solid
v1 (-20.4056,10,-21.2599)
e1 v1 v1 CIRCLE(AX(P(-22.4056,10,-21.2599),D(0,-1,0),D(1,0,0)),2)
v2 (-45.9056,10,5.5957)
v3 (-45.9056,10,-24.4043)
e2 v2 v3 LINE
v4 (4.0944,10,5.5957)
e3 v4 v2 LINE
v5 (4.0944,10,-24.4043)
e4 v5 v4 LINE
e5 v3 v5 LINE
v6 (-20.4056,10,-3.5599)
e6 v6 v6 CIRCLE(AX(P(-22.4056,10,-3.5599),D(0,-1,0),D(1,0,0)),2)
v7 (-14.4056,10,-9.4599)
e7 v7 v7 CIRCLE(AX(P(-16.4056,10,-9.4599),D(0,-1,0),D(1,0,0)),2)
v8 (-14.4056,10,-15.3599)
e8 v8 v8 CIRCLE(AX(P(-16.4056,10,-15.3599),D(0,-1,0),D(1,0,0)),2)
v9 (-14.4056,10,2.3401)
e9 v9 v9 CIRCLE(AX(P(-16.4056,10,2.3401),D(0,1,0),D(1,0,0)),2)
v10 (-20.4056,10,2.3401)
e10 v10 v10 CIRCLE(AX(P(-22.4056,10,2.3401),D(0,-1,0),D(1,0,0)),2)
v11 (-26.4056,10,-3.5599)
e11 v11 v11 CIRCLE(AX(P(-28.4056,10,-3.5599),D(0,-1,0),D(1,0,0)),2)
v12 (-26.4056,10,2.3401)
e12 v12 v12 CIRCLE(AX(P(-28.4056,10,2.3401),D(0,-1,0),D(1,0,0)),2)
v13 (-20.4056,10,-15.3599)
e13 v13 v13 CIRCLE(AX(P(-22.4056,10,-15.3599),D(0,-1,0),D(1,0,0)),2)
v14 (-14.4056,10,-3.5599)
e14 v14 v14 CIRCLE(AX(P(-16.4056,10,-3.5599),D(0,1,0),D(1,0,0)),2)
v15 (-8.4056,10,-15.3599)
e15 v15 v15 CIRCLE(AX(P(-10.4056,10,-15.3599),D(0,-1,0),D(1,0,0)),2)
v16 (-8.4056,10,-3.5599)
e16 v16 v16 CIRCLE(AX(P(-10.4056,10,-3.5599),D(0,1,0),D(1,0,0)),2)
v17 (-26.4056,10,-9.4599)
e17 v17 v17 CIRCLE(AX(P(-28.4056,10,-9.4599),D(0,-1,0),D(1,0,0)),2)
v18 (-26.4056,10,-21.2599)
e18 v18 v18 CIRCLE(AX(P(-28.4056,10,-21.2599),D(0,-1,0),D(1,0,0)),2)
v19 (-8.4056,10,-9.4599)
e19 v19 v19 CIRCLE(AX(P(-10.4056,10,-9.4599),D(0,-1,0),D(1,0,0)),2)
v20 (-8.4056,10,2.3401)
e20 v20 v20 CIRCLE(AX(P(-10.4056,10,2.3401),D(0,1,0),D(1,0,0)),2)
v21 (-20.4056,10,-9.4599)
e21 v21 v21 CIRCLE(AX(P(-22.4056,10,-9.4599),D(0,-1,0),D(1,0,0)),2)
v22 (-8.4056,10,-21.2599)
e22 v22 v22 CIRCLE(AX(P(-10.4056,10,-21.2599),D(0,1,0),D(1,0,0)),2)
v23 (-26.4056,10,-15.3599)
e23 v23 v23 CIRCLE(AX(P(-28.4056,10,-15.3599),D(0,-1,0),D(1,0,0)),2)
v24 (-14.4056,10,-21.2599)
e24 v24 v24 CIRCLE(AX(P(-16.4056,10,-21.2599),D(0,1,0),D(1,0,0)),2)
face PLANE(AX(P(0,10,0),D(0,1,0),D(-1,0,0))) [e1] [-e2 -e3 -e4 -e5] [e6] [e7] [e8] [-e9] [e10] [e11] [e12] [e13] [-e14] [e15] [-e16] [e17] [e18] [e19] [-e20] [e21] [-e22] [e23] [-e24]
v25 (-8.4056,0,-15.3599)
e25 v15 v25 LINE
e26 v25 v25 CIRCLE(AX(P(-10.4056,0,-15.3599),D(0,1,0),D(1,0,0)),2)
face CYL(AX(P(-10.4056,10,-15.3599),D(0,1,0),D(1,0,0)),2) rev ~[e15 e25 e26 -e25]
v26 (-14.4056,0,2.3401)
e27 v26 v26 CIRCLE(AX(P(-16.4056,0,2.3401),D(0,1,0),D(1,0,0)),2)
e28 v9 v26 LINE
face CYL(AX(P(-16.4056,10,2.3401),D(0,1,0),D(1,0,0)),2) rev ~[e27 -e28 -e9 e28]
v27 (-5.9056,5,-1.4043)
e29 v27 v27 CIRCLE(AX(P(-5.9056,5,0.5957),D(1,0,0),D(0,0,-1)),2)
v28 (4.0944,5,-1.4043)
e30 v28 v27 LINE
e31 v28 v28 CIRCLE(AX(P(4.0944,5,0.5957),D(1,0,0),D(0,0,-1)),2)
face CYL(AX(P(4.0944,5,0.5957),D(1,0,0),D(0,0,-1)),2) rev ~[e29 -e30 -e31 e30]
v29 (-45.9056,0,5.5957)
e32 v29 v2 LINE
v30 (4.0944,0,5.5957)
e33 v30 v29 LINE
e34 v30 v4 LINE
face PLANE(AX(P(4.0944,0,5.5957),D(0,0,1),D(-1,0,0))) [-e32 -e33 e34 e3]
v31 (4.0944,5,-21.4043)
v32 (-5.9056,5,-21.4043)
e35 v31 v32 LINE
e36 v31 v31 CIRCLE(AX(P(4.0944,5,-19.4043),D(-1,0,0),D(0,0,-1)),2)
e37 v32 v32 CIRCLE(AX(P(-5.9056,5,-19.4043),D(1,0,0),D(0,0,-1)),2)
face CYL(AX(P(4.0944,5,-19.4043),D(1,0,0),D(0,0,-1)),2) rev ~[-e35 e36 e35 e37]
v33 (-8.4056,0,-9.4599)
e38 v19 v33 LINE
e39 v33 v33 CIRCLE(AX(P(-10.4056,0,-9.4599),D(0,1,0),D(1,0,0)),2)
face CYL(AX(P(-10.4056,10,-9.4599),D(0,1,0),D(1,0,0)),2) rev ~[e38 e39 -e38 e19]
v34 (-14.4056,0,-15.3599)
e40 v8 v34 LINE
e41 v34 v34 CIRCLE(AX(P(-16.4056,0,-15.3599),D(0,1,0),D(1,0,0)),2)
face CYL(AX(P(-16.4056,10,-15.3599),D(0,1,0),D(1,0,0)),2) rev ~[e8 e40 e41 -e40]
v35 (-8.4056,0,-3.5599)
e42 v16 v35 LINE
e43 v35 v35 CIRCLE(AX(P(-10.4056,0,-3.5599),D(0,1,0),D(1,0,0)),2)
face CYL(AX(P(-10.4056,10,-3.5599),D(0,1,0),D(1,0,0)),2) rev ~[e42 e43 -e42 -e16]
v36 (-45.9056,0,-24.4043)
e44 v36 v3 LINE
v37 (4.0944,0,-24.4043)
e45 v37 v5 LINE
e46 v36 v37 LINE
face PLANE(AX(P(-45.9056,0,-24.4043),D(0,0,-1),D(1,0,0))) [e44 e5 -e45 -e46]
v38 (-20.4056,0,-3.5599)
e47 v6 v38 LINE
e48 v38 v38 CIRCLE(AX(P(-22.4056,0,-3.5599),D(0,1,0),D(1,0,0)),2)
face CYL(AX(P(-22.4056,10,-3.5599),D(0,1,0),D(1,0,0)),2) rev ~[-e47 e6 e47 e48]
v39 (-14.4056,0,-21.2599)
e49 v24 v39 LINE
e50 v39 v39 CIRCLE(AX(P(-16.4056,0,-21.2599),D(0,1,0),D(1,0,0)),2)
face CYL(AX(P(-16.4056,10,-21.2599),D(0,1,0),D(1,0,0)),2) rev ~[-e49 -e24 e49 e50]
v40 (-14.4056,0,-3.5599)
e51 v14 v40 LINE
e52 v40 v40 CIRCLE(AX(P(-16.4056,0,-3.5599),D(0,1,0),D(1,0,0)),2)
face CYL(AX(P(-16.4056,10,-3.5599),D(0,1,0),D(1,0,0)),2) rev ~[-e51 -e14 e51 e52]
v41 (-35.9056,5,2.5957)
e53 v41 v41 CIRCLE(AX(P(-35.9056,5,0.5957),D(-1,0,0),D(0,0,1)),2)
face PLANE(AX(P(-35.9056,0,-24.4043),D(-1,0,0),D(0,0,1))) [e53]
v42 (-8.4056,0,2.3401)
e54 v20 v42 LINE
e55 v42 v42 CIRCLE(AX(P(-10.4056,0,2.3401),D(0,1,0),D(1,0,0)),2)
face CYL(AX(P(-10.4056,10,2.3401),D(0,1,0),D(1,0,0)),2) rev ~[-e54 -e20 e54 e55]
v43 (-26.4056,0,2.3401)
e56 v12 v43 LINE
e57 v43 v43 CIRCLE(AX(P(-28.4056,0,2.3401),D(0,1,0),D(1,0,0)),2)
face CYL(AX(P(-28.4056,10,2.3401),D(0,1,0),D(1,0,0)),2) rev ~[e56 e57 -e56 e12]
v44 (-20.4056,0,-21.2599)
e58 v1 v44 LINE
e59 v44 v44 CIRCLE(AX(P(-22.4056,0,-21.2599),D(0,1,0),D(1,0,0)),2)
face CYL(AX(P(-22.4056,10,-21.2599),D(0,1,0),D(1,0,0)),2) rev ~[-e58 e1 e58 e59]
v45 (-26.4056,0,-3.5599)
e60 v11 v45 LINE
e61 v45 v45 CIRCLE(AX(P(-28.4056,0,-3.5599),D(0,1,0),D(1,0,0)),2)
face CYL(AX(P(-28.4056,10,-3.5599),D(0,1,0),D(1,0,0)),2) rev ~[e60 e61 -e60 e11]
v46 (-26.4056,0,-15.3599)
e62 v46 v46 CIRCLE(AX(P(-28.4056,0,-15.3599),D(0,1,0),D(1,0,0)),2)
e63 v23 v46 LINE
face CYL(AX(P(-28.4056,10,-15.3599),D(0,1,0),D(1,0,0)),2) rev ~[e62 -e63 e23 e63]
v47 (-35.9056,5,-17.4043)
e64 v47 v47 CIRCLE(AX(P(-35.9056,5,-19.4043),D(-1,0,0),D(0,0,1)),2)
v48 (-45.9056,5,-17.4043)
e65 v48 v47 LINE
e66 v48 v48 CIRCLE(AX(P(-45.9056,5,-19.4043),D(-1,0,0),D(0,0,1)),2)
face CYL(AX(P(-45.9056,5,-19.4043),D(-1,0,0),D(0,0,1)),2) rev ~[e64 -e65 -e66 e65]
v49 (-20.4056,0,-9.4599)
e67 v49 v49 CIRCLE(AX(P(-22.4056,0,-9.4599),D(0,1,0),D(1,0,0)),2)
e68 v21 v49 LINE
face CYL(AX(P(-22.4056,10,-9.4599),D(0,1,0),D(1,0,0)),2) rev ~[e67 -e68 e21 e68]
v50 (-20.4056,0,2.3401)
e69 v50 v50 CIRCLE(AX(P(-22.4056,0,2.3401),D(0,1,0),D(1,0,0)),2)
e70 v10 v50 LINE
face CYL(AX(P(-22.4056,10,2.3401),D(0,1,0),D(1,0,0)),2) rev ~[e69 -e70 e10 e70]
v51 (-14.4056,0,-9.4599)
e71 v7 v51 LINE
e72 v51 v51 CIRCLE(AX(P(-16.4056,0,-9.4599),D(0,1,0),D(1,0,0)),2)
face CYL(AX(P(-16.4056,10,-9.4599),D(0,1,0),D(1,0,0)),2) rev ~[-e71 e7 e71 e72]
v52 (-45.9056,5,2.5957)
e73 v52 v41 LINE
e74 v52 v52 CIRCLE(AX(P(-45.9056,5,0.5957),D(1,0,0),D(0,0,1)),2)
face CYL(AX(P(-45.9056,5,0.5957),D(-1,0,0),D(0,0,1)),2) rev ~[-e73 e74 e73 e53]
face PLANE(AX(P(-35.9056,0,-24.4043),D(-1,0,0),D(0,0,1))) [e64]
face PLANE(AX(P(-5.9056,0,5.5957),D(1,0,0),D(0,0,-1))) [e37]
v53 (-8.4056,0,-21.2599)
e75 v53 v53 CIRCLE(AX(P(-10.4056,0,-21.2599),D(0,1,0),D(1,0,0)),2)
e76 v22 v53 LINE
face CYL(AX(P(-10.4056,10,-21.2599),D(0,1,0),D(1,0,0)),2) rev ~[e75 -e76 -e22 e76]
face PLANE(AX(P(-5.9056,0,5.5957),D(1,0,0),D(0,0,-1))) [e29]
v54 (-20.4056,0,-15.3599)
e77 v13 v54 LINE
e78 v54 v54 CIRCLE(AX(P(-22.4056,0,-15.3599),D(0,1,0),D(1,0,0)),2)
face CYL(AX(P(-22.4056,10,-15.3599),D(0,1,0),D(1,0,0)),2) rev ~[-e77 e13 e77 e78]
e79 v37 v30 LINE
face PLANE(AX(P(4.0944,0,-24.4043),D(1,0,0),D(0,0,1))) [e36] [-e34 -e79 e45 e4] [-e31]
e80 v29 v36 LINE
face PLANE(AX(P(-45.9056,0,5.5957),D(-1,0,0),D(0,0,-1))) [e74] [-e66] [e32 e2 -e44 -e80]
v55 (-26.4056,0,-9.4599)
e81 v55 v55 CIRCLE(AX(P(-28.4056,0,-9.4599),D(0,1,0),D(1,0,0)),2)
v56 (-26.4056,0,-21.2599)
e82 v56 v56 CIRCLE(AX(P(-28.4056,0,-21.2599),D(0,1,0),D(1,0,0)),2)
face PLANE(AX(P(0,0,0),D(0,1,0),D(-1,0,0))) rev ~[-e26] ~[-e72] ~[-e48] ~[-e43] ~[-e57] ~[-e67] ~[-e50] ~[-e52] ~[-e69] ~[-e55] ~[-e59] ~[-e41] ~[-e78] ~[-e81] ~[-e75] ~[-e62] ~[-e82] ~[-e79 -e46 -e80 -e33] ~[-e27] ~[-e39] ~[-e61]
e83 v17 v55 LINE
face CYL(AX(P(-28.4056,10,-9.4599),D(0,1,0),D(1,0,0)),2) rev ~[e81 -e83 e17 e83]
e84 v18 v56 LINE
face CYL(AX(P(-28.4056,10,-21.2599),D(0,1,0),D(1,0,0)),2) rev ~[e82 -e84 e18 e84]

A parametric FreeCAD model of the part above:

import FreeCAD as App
import Part
import Sketcher

V = App.Vector
Q = App.Units.Quantity

doc = App.newDocument("Part")
body = doc.addObject("PartDesign::Body", "Body")

# Sketch on XZ plane
sketch1 = body.newObject("Sketcher::SketchObject", "Sketch")
sketch1.AttachmentSupport = (doc.getObject("XZ_Plane"), [""])
sketch1.MapMode = "FlatFace"
sketch1.addGeometry(Part.LineSegment(V(-45.9056, 5.5957, 0), V(4.0944, 5.5957, 0)), False)
sketch1.addGeometry(Part.LineSegment(V(4.0944, 5.5957, 0), V(4.0944, -24.4043, 0)), False)
sketch1.addGeometry(Part.LineSegment(V(4.0944, -24.4043, 0), V(-45.9056, -24.4043, 0)), False)
sketch1.addGeometry(Part.LineSegment(V(-45.9056, -24.4043, 0), V(-45.9056, 5.5957, 0)), False)
sketch1.addConstraint(Sketcher.Constraint("Coincident", 0, 2, 1, 1))
sketch1.addConstraint(Sketcher.Constraint("Coincident", 1, 2, 2, 1))
sketch1.addConstraint(Sketcher.Constraint("Coincident", 2, 2, 3, 1))
sketch1.addConstraint(Sketcher.Constraint("Coincident", 3, 2, 0, 1))
sketch1.addConstraint(Sketcher.Constraint("Horizontal", 0))
sketch1.addConstraint(Sketcher.Constraint("Vertical", 1))
sketch1.addConstraint(Sketcher.Constraint("Horizontal", 2))
sketch1.addConstraint(Sketcher.Constraint("Vertical", 3))
sketch1.addConstraint(Sketcher.Constraint("DistanceX", 0, 1, 0, 2, Q("50 mm")))
sketch1.addConstraint(Sketcher.Constraint("DistanceY", 1, 2, 1, 1, Q("30 mm")))
sketch1.addConstraint(Sketcher.Constraint("DistanceX", -1, 1, 0, 2, Q("4.0944 mm")))
sketch1.addConstraint(Sketcher.Constraint("DistanceY", -1, 1, 0, 2, Q("5.5957 mm")))
pad1 = body.newObject("PartDesign::Pad", "Pad")
pad1.Profile = sketch1
pad1.Length = 10
pad1.Reversed = True

# Sketch on YZ plane
sketch2 = body.newObject("Sketcher::SketchObject", "Sketch001")
sketch2.AttachmentSupport = (doc.getObject("YZ_Plane"), [""])
sketch2.MapMode = "FlatFace"
sketch2.AttachmentOffset = App.Placement(V(0, 0, 4.0944), App.Rotation())
sketch2.addGeometry(Part.Circle(V(5, 0.5957, 0), V(0, 0, 1), 2), False)
sketch2.addGeometry(Part.Circle(V(5, -19.4043, 0), V(0, 0, 1), 2), False)
sketch2.addConstraint(Sketcher.Constraint("Equal", 0, 1))
sketch2.addConstraint(Sketcher.Constraint("Vertical", 0, 3, 1, 3))
sketch2.addConstraint(Sketcher.Constraint("Diameter", 0, Q("4 mm")))
sketch2.addConstraint(Sketcher.Constraint("DistanceX", -1, 1, 0, 3, Q("5 mm")))
sketch2.addConstraint(Sketcher.Constraint("DistanceY", 1, 3, 0, 3, Q("20 mm")))
sketch2.addConstraint(Sketcher.Constraint("DistanceY", -1, 1, 0, 3, Q("0.5957 mm")))
pocket1 = body.newObject("PartDesign::Pocket", "Pocket")
pocket1.Profile = sketch2
pocket1.Length = 10

# Sketch on YZ plane
sketch3 = body.newObject("Sketcher::SketchObject", "Sketch002")
sketch3.AttachmentSupport = (doc.getObject("YZ_Plane"), [""])
sketch3.MapMode = "FlatFace"
sketch3.AttachmentOffset = App.Placement(V(0, 0, -45.9056), App.Rotation())
sketch3.addGeometry(Part.Circle(V(5, -19.4043, 0), V(0, 0, 1), 2), False)
sketch3.addGeometry(Part.Circle(V(5, 0.5957, 0), V(0, 0, 1), 2), False)
sketch3.addConstraint(Sketcher.Constraint("Equal", 0, 1))
sketch3.addConstraint(Sketcher.Constraint("Vertical", 0, 3, 1, 3))
sketch3.addConstraint(Sketcher.Constraint("Diameter", 0, Q("4 mm")))
sketch3.addConstraint(Sketcher.Constraint("DistanceX", -1, 1, 0, 3, Q("5 mm")))
sketch3.addConstraint(Sketcher.Constraint("DistanceY", 0, 3, 1, 3, Q("20 mm")))
sketch3.addConstraint(Sketcher.Constraint("DistanceY", 0, 3, -1, 1, Q("19.4043 mm")))
pocket2 = body.newObject("PartDesign::Pocket", "Pocket001")
pocket2.Profile = sketch3
pocket2.Length = 10
pocket2.Reversed = True

# Sketch on XZ plane
sketch4 = body.newObject("Sketcher::SketchObject", "Sketch003")
sketch4.AttachmentSupport = (doc.getObject("XZ_Plane"), [""])
sketch4.MapMode = "FlatFace"
sketch4.AttachmentOffset = App.Placement(V(0, 0, -10), App.Rotation())
sketch4.addGeometry(Part.Circle(V(-28.4056, -21.2599, 0), V(0, 0, 1), 2), False)
sketch4.addGeometry(Part.Circle(V(-22.4056, -21.2599, 0), V(0, 0, 1), 2), False)
sketch4.addGeometry(Part.Circle(V(-10.4056, -15.3599, 0), V(0, 0, 1), 2), False)
sketch4.addGeometry(Part.Circle(V(-16.4056, -15.3599, 0), V(0, 0, 1), 2), False)
sketch4.addGeometry(Part.Circle(V(-28.4056, -9.4599, 0), V(0, 0, 1), 2), False)
sketch4.addGeometry(Part.Circle(V(-28.4056, 2.3401, 0), V(0, 0, 1), 2), False)
sketch4.addGeometry(Part.Circle(V(-28.4056, -15.3599, 0), V(0, 0, 1), 2), False)
sketch4.addGeometry(Part.Circle(V(-28.4056, -3.5599, 0), V(0, 0, 1), 2), False)
sketch4.addGeometry(Part.Circle(V(-22.4056, 2.3401, 0), V(0, 0, 1), 2), False)
sketch4.addGeometry(Part.Circle(V(-22.4056, -9.4599, 0), V(0, 0, 1), 2), False)
sketch4.addGeometry(Part.Circle(V(-10.4056, -9.4599, 0), V(0, 0, 1), 2), False)
sketch4.addGeometry(Part.Circle(V(-22.4056, -15.3599, 0), V(0, 0, 1), 2), False)
sketch4.addGeometry(Part.Circle(V(-22.4056, -3.5599, 0), V(0, 0, 1), 2), False)
sketch4.addGeometry(Part.Circle(V(-16.4056, -9.4599, 0), V(0, 0, 1), 2), False)
sketch4.addGeometry(Part.Circle(V(-16.4056, -21.2599, 0), V(0, 0, 1), 2), False)
sketch4.addGeometry(Part.Circle(V(-16.4056, -3.5599, 0), V(0, 0, 1), 2), False)
sketch4.addGeometry(Part.Circle(V(-16.4056, 2.3401, 0), V(0, 0, 1), 2), False)
sketch4.addGeometry(Part.Circle(V(-10.4056, -21.2599, 0), V(0, 0, 1), 2), False)
sketch4.addGeometry(Part.Circle(V(-10.4056, -3.5599, 0), V(0, 0, 1), 2), False)
sketch4.addGeometry(Part.Circle(V(-10.4056, 2.3401, 0), V(0, 0, 1), 2), False)
sketch4.addConstraint(Sketcher.Constraint("Equal", 0, 1))
sketch4.addConstraint(Sketcher.Constraint("Equal", 1, 2))
sketch4.addConstraint(Sketcher.Constraint("Equal", 2, 3))
sketch4.addConstraint(Sketcher.Constraint("Equal", 3, 4))
sketch4.addConstraint(Sketcher.Constraint("Equal", 4, 5))
sketch4.addConstraint(Sketcher.Constraint("Equal", 5, 6))
sketch4.addConstraint(Sketcher.Constraint("Equal", 6, 7))
sketch4.addConstraint(Sketcher.Constraint("Equal", 7, 8))
sketch4.addConstraint(Sketcher.Constraint("Equal", 8, 9))
sketch4.addConstraint(Sketcher.Constraint("Equal", 9, 10))
sketch4.addConstraint(Sketcher.Constraint("Equal", 10, 11))
sketch4.addConstraint(Sketcher.Constraint("Equal", 11, 12))
sketch4.addConstraint(Sketcher.Constraint("Equal", 12, 13))
sketch4.addConstraint(Sketcher.Constraint("Equal", 13, 14))
sketch4.addConstraint(Sketcher.Constraint("Equal", 14, 15))
sketch4.addConstraint(Sketcher.Constraint("Equal", 15, 16))
sketch4.addConstraint(Sketcher.Constraint("Equal", 16, 17))
sketch4.addConstraint(Sketcher.Constraint("Equal", 17, 18))
sketch4.addConstraint(Sketcher.Constraint("Equal", 18, 19))
sketch4.addConstraint(Sketcher.Constraint("Horizontal", 0, 3, 1, 3))
sketch4.addConstraint(Sketcher.Constraint("Horizontal", 2, 3, 3, 3))
sketch4.addConstraint(Sketcher.Constraint("Horizontal", 3, 3, 6, 3))
sketch4.addConstraint(Sketcher.Constraint("Horizontal", 5, 3, 8, 3))
sketch4.addConstraint(Sketcher.Constraint("Horizontal", 4, 3, 9, 3))
sketch4.addConstraint(Sketcher.Constraint("Horizontal", 9, 3, 10, 3))
sketch4.addConstraint(Sketcher.Constraint("Horizontal", 6, 3, 11, 3))
sketch4.addConstraint(Sketcher.Constraint("Horizontal", 7, 3, 12, 3))
sketch4.addConstraint(Sketcher.Constraint("Horizontal", 10, 3, 13, 3))
sketch4.addConstraint(Sketcher.Constraint("Horizontal", 1, 3, 14, 3))
sketch4.addConstraint(Sketcher.Constraint("Horizontal", 12, 3, 15, 3))
sketch4.addConstraint(Sketcher.Constraint("Horizontal", 8, 3, 16, 3))
sketch4.addConstraint(Sketcher.Constraint("Horizontal", 14, 3, 17, 3))
sketch4.addConstraint(Sketcher.Constraint("Horizontal", 15, 3, 18, 3))
sketch4.addConstraint(Sketcher.Constraint("Horizontal", 16, 3, 19, 3))
sketch4.addConstraint(Sketcher.Constraint("Vertical", 0, 3, 4, 3))
sketch4.addConstraint(Sketcher.Constraint("Vertical", 4, 3, 5, 3))
sketch4.addConstraint(Sketcher.Constraint("Vertical", 5, 3, 6, 3))
sketch4.addConstraint(Sketcher.Constraint("Vertical", 6, 3, 7, 3))
sketch4.addConstraint(Sketcher.Constraint("Vertical", 1, 3, 8, 3))
sketch4.addConstraint(Sketcher.Constraint("Vertical", 8, 3, 9, 3))
sketch4.addConstraint(Sketcher.Constraint("Vertical", 2, 3, 10, 3))
sketch4.addConstraint(Sketcher.Constraint("Vertical", 9, 3, 11, 3))
sketch4.addConstraint(Sketcher.Constraint("Vertical", 11, 3, 12, 3))
sketch4.addConstraint(Sketcher.Constraint("Vertical", 3, 3, 13, 3))
sketch4.addConstraint(Sketcher.Constraint("Vertical", 13, 3, 14, 3))
sketch4.addConstraint(Sketcher.Constraint("Vertical", 14, 3, 15, 3))
sketch4.addConstraint(Sketcher.Constraint("Vertical", 15, 3, 16, 3))
sketch4.addConstraint(Sketcher.Constraint("Vertical", 10, 3, 17, 3))
sketch4.addConstraint(Sketcher.Constraint("Vertical", 17, 3, 18, 3))
sketch4.addConstraint(Sketcher.Constraint("Vertical", 18, 3, 19, 3))
sketch4.addConstraint(Sketcher.Constraint("Diameter", 0, Q("4 mm")))
sketch4.addConstraint(Sketcher.Constraint("DistanceX", 0, 3, 1, 3, Q("6 mm")))
sketch4.addConstraint(Sketcher.Constraint("DistanceX", 3, 3, 2, 3, Q("6 mm")))
sketch4.addConstraint(Sketcher.Constraint("DistanceX", 1, 3, 3, 3, Q("6 mm")))
sketch4.addConstraint(Sketcher.Constraint("DistanceY", 1, 3, 2, 3, Q("5.9 mm")))
sketch4.addConstraint(Sketcher.Constraint("DistanceY", 3, 3, 4, 3, Q("5.9 mm")))
sketch4.addConstraint(Sketcher.Constraint("DistanceY", 4, 3, 7, 3, Q("5.9 mm")))
sketch4.addConstraint(Sketcher.Constraint("DistanceY", 7, 3, 5, 3, Q("5.9 mm")))
sketch4.addConstraint(Sketcher.Constraint("DistanceY", 0, 3, -1, 1, Q("21.26 mm")))
sketch4.addConstraint(Sketcher.Constraint("DistanceX", 0, 3, -1, 1, Q("28.4056 mm")))
pocket3 = body.newObject("PartDesign::Pocket", "Pocket002")
pocket3.Profile = sketch4
pocket3.Length = 10
pocket3.Reversed = True

doc.recompute()
